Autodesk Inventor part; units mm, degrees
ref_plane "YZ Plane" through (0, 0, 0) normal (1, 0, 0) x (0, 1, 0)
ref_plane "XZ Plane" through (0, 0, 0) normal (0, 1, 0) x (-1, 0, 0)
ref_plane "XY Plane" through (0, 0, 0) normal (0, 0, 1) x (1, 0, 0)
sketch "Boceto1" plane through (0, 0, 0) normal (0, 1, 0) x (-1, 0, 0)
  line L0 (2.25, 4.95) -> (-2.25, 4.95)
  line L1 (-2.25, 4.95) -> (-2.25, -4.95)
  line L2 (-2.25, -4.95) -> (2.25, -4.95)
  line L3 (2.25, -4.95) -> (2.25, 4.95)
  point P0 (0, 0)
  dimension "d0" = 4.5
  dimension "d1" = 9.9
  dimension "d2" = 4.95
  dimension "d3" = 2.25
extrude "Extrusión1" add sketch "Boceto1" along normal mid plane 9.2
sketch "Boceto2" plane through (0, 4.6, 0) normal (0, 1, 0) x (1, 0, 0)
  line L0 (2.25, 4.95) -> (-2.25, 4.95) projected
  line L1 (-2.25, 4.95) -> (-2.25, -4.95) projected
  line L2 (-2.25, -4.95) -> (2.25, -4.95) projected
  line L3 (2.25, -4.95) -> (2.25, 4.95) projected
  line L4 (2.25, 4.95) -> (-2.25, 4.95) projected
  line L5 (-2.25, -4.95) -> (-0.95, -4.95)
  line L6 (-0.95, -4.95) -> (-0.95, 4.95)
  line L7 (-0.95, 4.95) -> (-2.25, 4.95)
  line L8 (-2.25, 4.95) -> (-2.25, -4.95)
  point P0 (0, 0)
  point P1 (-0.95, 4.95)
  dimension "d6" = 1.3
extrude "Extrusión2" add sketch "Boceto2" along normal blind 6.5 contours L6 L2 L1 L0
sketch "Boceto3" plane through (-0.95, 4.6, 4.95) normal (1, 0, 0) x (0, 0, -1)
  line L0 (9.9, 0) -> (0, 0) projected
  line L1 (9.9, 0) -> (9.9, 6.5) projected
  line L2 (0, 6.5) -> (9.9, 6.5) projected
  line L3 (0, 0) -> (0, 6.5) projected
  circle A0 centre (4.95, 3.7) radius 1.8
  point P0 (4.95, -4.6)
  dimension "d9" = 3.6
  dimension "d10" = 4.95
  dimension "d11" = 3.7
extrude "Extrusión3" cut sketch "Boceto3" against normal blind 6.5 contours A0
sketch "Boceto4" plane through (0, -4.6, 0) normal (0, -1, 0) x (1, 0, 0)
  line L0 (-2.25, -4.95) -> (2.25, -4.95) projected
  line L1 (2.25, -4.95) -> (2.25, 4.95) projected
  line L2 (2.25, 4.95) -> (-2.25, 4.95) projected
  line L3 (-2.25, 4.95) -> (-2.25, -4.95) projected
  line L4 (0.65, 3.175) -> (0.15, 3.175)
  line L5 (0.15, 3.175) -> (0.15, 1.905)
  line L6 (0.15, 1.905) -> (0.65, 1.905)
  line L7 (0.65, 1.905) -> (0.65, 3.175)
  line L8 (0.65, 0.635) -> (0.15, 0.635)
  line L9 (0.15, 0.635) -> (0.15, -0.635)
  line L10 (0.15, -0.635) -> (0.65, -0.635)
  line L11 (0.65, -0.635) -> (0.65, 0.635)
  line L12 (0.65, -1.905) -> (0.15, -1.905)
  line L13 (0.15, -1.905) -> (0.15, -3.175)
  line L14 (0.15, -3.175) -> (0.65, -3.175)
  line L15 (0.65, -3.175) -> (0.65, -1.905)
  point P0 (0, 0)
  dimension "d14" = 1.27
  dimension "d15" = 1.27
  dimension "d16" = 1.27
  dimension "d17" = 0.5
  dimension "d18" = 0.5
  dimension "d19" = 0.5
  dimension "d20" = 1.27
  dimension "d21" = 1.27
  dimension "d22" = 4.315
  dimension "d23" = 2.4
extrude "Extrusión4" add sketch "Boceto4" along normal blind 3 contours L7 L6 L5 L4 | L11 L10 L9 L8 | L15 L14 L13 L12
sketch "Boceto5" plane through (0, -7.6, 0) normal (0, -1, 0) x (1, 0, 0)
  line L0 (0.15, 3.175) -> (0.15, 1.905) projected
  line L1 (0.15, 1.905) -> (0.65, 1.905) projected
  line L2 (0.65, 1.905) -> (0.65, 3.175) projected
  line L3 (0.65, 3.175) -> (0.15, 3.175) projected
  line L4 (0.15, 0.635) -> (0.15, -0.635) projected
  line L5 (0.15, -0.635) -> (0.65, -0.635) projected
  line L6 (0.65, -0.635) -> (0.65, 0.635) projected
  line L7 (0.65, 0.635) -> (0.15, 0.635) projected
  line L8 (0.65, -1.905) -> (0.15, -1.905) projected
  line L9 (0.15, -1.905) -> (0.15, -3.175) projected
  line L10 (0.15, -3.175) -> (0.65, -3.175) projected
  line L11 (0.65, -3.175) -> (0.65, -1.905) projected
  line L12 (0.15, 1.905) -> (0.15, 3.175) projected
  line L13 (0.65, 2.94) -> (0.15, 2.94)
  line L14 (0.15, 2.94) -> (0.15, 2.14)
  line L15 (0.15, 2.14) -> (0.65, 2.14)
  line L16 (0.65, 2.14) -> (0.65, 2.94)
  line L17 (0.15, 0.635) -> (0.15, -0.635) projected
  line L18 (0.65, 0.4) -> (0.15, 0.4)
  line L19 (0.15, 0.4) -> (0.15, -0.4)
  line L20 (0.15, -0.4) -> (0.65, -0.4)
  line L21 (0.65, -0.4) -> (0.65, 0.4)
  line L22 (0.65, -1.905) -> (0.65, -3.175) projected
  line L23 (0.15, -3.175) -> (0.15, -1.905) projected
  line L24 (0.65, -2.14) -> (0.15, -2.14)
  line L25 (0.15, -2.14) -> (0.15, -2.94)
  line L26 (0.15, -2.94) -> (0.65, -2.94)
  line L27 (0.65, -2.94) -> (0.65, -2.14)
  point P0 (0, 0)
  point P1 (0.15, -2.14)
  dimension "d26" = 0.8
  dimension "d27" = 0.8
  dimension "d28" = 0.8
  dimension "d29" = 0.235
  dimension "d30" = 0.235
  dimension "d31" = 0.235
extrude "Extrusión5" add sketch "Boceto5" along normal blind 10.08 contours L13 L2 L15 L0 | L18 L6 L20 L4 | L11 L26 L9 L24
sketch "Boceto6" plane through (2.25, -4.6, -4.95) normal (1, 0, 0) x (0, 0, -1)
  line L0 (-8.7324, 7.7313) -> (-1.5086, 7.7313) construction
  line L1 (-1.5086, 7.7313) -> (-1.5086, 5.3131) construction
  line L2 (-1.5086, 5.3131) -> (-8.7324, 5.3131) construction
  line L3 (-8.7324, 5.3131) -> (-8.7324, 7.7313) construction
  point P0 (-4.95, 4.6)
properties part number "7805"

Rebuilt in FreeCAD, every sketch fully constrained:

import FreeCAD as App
import Part
import Sketcher

V = App.Vector


def add_polygon(sketch, points):
    """Adds a closed chain of lines whose ends are joined by coincident constraints."""
    first, n = sketch.GeometryCount, len(points)
    for a, b in zip(points, points[1:] + points[:1]):
        sketch.addGeometry(Part.LineSegment(App.Vector(*a, 0), App.Vector(*b, 0)), False)
    for i in range(n):
        sketch.addConstraint(Sketcher.Constraint("Coincident", first + i, 2, first + (i + 1) % n, 1))

doc = App.newDocument("Part")
body = doc.addObject("PartDesign::Body", "Body")

sketch1 = body.newObject("Sketcher::SketchObject", "Sketch")
sketch1.AttachmentSupport = (doc.getObject("XZ_Plane"), [""])
sketch1.MapMode = "FlatFace"
add_polygon(sketch1, [(-2.2, -5), (-2.2, 5), (2.2, 5), (2.2, -5)])
sketch1.addConstraint(Sketcher.Constraint("Vertical", 0))
sketch1.addConstraint(Sketcher.Constraint("Horizontal", 1))
sketch1.addConstraint(Sketcher.Constraint("Vertical", 2))
sketch1.addConstraint(Sketcher.Constraint("Horizontal", 3))
sketch1.addConstraint(Sketcher.Constraint("Symmetric", 0, 2, 2, 2, -1, 1))
sketch1.addConstraint(Sketcher.Constraint("DistanceX", 1, 1, 1, 2, 4.5))
sketch1.addConstraint(Sketcher.Constraint("DistanceY", 0, 1, 0, 2, 9.9))
pad1 = body.newObject("PartDesign::Pad", "Pad")
pad1.Profile = sketch1
pad1.Length = 9.2
pad1.Midplane = True

sketch2 = body.newObject("Sketcher::SketchObject", "Sketch001")
sketch2.AttachmentSupport = (doc.getObject("XZ_Plane"), [""])
sketch2.MapMode = "FlatFace"
sketch2.AttachmentOffset = App.Placement(V(0, 0, -4.6), App.Rotation())
add_polygon(sketch2, [(-0.9, 5), (-0.9, -5), (-2.2, -5), (-2.2, 5)])
sketch2.addConstraint(Sketcher.Constraint("Vertical", 0))
sketch2.addConstraint(Sketcher.Constraint("Horizontal", 1))
sketch2.addConstraint(Sketcher.Constraint("Vertical", 2))
sketch2.addConstraint(Sketcher.Constraint("Horizontal", 3))
sketch2.addConstraint(Sketcher.Constraint("DistanceX", 1, 2, 1, 1, 1.3))
sketch2.addConstraint(Sketcher.Constraint("DistanceY", 0, 2, 0, 1, 9.9))
sketch2.addConstraint(Sketcher.Constraint("DistanceX", 0, 2, -1, 1, 0.95))
sketch2.addConstraint(Sketcher.Constraint("DistanceY", 0, 2, -1, 1, 4.95))
pad2 = body.newObject("PartDesign::Pad", "Pad001")
pad2.Profile = sketch2
pad2.Length = 6.5
pad2.Reversed = True

sketch3 = body.newObject("Sketcher::SketchObject", "Sketch002")
sketch3.AttachmentSupport = (doc.getObject("YZ_Plane"), [""])
sketch3.MapMode = "FlatFace"
sketch3.AttachmentOffset = App.Placement(V(0, 0, -0.95), App.Rotation())
sketch3.addGeometry(Part.Circle(V(8.3, 0, 0), V(0, 0, 1), 1.8), False)
sketch3.addConstraint(Sketcher.Constraint("PointOnObject", 0, 3, -1))
sketch3.addConstraint(Sketcher.Constraint("Diameter", 0, 3.6))
sketch3.addConstraint(Sketcher.Constraint("DistanceX", -1, 1, 0, 3, 8.3))
pocket1 = body.newObject("PartDesign::Pocket", "Pocket")
pocket1.Profile = sketch3
pocket1.Length = 6.5

sketch4 = body.newObject("Sketcher::SketchObject", "Sketch003")
sketch4.AttachmentSupport = (doc.getObject("XZ_Plane"), [""])
sketch4.MapMode = "FlatFace"
sketch4.AttachmentOffset = App.Placement(V(0, 0, 4.6), App.Rotation())
add_polygon(sketch4, [(0.7, 1.9), (0.7, 3.2), (0.1, 3.2), (0.1, 1.9)])
add_polygon(sketch4, [(0.7, -0.6), (0.7, 0.6), (0.1, 0.6), (0.1, -0.6)])
add_polygon(sketch4, [(0.7, -3.2), (0.7, -1.9), (0.1, -1.9), (0.1, -3.2)])
sketch4.addConstraint(Sketcher.Constraint("Vertical", 0))
sketch4.addConstraint(Sketcher.Constraint("Horizontal", 1))
sketch4.addConstraint(Sketcher.Constraint("Vertical", 2))
sketch4.addConstraint(Sketcher.Constraint("Horizontal", 3))
sketch4.addConstraint(Sketcher.Constraint("Vertical", 4))
sketch4.addConstraint(Sketcher.Constraint("Horizontal", 5))
sketch4.addConstraint(Sketcher.Constraint("Vertical", 6))
sketch4.addConstraint(Sketcher.Constraint("Horizontal", 7))
sketch4.addConstraint(Sketcher.Constraint("Vertical", 8))
sketch4.addConstraint(Sketcher.Constraint("Horizontal", 9))
sketch4.addConstraint(Sketcher.Constraint("Vertical", 10))
sketch4.addConstraint(Sketcher.Constraint("Horizontal", 11))
sketch4.addConstraint(Sketcher.Constraint("Symmetric", 3, 2, 8, 2, -1))
sketch4.addConstraint(Sketcher.Constraint("Symmetric", 1, 2, 10, 2, -1))
sketch4.addConstraint(Sketcher.Constraint("Vertical", 3, 2, 4, 2))
sketch4.addConstraint(Sketcher.Constraint("Vertical", 2, 2, 5, 2))
sketch4.addConstraint(Sketcher.Constraint("Equal", 2, 4))
sketch4.addConstraint(Sketcher.Constraint("DistanceX", 1, 2, 1, 1, 0.5))
sketch4.addConstraint(Sketcher.Constraint("DistanceY", 0, 1, 0, 2, 1.27))
sketch4.addConstraint(Sketcher.Constraint("DistanceY", 4, 2, 3, 2, 1.27))
sketch4.addConstraint(Sketcher.Constraint("DistanceY", 8, 2, 7, 2, 1.27))
sketch4.addConstraint(Sketcher.Constraint("DistanceX", -1, 1, 0, 2, 0.65))
pad3 = body.newObject("PartDesign::Pad", "Pad002")
pad3.Profile = sketch4
pad3.Length = 3

sketch5 = body.newObject("Sketcher::SketchObject", "Sketch004")
sketch5.AttachmentSupport = (doc.getObject("XZ_Plane"), [""])
sketch5.MapMode = "FlatFace"
sketch5.AttachmentOffset = App.Placement(V(0, 0, 7.6), App.Rotation())
add_polygon(sketch5, [(0.7, 2.9), (0.1, 2.9), (0.1, 2.1), (0.7, 2.1)])
add_polygon(sketch5, [(0.7, 0.4), (0.1, 0.4), (0.1, -0.4), (0.7, -0.4)])
add_polygon(sketch5, [(0.7, -2.9), (0.7, -2.1), (0.1, -2.1), (0.1, -2.9)])
sketch5.addConstraint(Sketcher.Constraint("Horizontal", 0))
sketch5.addConstraint(Sketcher.Constraint("Vertical", 1))
sketch5.addConstraint(Sketcher.Constraint("Horizontal", 2))
sketch5.addConstraint(Sketcher.Constraint("Vertical", 3))
sketch5.addConstraint(Sketcher.Constraint("Horizontal", 4))
sketch5.addConstraint(Sketcher.Constraint("Vertical", 5))
sketch5.addConstraint(Sketcher.Constraint("Horizontal", 6))
sketch5.addConstraint(Sketcher.Constraint("Vertical", 7))
sketch5.addConstraint(Sketcher.Constraint("Vertical", 8))
sketch5.addConstraint(Sketcher.Constraint("Horizontal", 9))
sketch5.addConstraint(Sketcher.Constraint("Vertical", 10))
sketch5.addConstraint(Sketcher.Constraint("Horizontal", 11))
sketch5.addConstraint(Sketcher.Constraint("Symmetric", 2, 2, 8, 2, -1))
sketch5.addConstraint(Sketcher.Constraint("Symmetric", 0, 2, 10, 2, -1))
sketch5.addConstraint(Sketcher.Constraint("Vertical", 1, 2, 4, 2))
sketch5.addConstraint(Sketcher.Constraint("Vertical", 3, 2, 6, 2))
sketch5.addConstraint(Sketcher.Constraint("Equal", 3, 5))
sketch5.addConstraint(Sketcher.Constraint("DistanceY", 1, 2, 1, 1, 0.8))
sketch5.addConstraint(Sketcher.Constraint("DistanceX", 0, 2, 0, 1, 0.5))
sketch5.addConstraint(Sketcher.Constraint("DistanceY", -1, 1, 4, 2, 0.4))
sketch5.addConstraint(Sketcher.Constraint("DistanceX", -1, 1, 0, 2, 0.15))
sketch5.addConstraint(Sketcher.Constraint("DistanceY", -1, 1, 0, 2, 2.94))
pad4 = body.newObject("PartDesign::Pad", "Pad003")
pad4.Profile = sketch5
pad4.Length = 10.08

doc.recompute()
